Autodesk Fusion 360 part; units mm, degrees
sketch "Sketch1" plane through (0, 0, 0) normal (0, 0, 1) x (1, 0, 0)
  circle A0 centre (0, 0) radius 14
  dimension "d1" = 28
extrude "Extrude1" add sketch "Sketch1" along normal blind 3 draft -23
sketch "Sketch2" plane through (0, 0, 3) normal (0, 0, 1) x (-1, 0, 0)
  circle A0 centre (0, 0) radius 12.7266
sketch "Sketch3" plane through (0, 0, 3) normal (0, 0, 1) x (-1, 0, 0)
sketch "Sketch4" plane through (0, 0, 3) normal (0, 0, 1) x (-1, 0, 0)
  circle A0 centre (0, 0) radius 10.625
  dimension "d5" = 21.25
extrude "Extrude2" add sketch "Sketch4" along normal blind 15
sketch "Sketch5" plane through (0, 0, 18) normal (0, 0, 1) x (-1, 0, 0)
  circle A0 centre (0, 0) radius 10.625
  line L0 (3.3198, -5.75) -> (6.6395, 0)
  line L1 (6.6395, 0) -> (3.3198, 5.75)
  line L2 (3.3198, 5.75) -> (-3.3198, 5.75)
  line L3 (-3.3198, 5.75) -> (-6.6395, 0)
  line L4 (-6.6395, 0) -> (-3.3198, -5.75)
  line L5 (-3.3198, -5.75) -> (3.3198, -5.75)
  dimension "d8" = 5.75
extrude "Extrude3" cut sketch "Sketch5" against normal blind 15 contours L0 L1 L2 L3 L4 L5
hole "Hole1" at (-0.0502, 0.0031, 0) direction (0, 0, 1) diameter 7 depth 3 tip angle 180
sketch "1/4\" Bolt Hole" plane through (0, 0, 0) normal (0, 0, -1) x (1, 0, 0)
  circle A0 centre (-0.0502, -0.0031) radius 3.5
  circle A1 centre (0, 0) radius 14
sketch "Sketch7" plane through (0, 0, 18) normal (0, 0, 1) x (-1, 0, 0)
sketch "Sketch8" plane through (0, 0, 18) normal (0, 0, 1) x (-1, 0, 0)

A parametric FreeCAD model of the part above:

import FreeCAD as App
import Part
import Sketcher
from FreeCAD import Vector
Q = App.Units.Quantity

doc = App.newDocument("Part")
body = doc.addObject("PartDesign::Body", "Body")

sketch1 = body.newObject("Sketcher::SketchObject", "Sketch")
sketch1.AttachmentSupport = (doc.getObject("XY_Plane"), [""])
sketch1.MapMode = "FlatFace"
sketch1.addGeometry(Part.Circle(Vector(0, 0, 0), Vector(0, 0, 1), 14), False)
sketch1.addConstraint(Sketcher.Constraint("Coincident", 0, 3, -1, 1))
sketch1.addConstraint(Sketcher.Constraint("Diameter", 0, 28.0))
pad1 = body.newObject("PartDesign::Pad", "Pad")
pad1.Profile = sketch1
pad1.Length = 3
pad1.TaperAngle = -23

sketch2 = body.newObject("Sketcher::SketchObject", "Sketch001")
sketch2.AttachmentSupport = (doc.getObject("XY_Plane"), [""])
sketch2.MapMode = "FlatFace"
sketch2.AttachmentOffset = App.Placement(Vector(0, 0, 3), App.Rotation())
sketch2.addGeometry(Part.Circle(Vector(0, 0, 0), Vector(0, 0, 1), 11), False)
sketch2.addConstraint(Sketcher.Constraint("Coincident", 0, 3, -1, 1))
sketch2.addConstraint(Sketcher.Constraint("Diameter", 0, 21.25))
pad2 = body.newObject("PartDesign::Pad", "Pad001")
pad2.Profile = sketch2
pad2.Length = 15

sketch3 = body.newObject("Sketcher::SketchObject", "Sketch002")
sketch3.AttachmentSupport = (doc.getObject("XY_Plane"), [""])
sketch3.MapMode = "FlatFace"
sketch3.AttachmentOffset = App.Placement(Vector(0, 0, 18), App.Rotation())
sketch3.addGeometry(Part.LineSegment(Vector(3, 6, 0), Vector(-3, 6, 0)), False)
sketch3.addGeometry(Part.LineSegment(Vector(-3, 6, 0), Vector(-7, 0, 0)), False)
sketch3.addGeometry(Part.LineSegment(Vector(-7, 0, 0), Vector(-3, -6, 0)), False)
sketch3.addGeometry(Part.LineSegment(Vector(-3, -6, 0), Vector(3, -6, 0)), False)
sketch3.addGeometry(Part.LineSegment(Vector(3, -6, 0), Vector(7, 0, 0)), False)
sketch3.addGeometry(Part.LineSegment(Vector(7, 0, 0), Vector(3, 6, 0)), False)
sketch3.addConstraint(Sketcher.Constraint("Coincident", 0, 2, 1, 1))
sketch3.addConstraint(Sketcher.Constraint("Coincident", 1, 2, 2, 1))
sketch3.addConstraint(Sketcher.Constraint("Coincident", 2, 2, 3, 1))
sketch3.addConstraint(Sketcher.Constraint("Coincident", 3, 2, 4, 1))
sketch3.addConstraint(Sketcher.Constraint("Coincident", 4, 2, 5, 1))
sketch3.addConstraint(Sketcher.Constraint("Coincident", 5, 2, 0, 1))
sketch3.addConstraint(Sketcher.Constraint("Horizontal", 0))
sketch3.addConstraint(Sketcher.Constraint("Horizontal", 3))
sketch3.addConstraint(Sketcher.Constraint("Symmetric", 0, 2, 3, 2, -1, 1))
sketch3.addConstraint(Sketcher.Constraint("Symmetric", 1, 2, 4, 2, -1, 1))
sketch3.addConstraint(Sketcher.Constraint("PointOnObject", 1, 2, -1))
sketch3.addConstraint(Sketcher.Constraint("Parallel", 2, 5))
sketch3.addConstraint(Sketcher.Constraint("Vertical", 0, 2, 2, 2))
sketch3.addConstraint(Sketcher.Constraint("DistanceY", -1, 1, 0, 2, 5.75))
sketch3.addConstraint(Sketcher.Constraint("Angle", 1, Q("-119.9995 deg")))
sketch3.addConstraint(Sketcher.Constraint("DistanceX", 0, 2, 0, 1, 6.6396))
pocket1 = body.newObject("PartDesign::Pocket", "Pocket")
pocket1.Profile = sketch3
pocket1.Length = 15

sketch4 = body.newObject("Sketcher::SketchObject", "Sketch003")
sketch4.AttachmentSupport = (doc.getObject("XY_Plane"), [""])
sketch4.MapMode = "FlatFace"
sketch4.addGeometry(Part.Circle(Vector(-0.1, 0, 0), Vector(0, 0, 1), 3.5), False)
sketch4.addConstraint(Sketcher.Constraint("Diameter", 0, 7.0))
sketch4.addConstraint(Sketcher.Constraint("DistanceY", -1, 1, 0, 3, 0.003))
sketch4.addConstraint(Sketcher.Constraint("DistanceX", 0, 3, -1, 1, 0.0502))
doc.recompute()
hole = body.newObject("PartDesign::Hole", "Hole")
hole.Profile = sketch4
hole.ThreadType = "None"
hole.Diameter = 7
hole.DepthType = "Dimension"
hole.Depth = 3
hole.DrillPoint = "Flat"
hole.Reversed = True

doc.recompute()
